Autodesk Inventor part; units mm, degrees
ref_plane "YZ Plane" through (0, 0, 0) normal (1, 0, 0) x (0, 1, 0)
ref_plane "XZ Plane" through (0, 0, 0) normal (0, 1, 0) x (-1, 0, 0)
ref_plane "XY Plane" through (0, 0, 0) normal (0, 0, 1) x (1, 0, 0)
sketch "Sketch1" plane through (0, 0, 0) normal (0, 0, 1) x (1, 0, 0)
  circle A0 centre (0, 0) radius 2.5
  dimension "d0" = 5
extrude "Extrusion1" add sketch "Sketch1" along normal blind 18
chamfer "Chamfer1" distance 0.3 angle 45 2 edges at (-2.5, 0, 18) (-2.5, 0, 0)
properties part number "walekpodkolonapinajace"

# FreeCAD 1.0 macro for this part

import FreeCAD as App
import Part
import Sketcher


def edges_at(feature, points):
    """Names of the edges that pass closest to the given points."""
    edges = feature.Shape.Edges
    near = lambda p: min(range(len(edges)), key=lambda i: edges[i].distToShape(Part.Vertex(*p))[0])
    return sorted({f"Edge{near(p) + 1}" for p in points})

doc = App.newDocument("Part")
body = doc.addObject("PartDesign::Body", "Body")

sketch1 = body.newObject("Sketcher::SketchObject", "Sketch")
sketch1.AttachmentSupport = (doc.getObject("XY_Plane"), [""])
sketch1.MapMode = "FlatFace"
sketch1.addGeometry(Part.Circle(App.Vector(0, 0, 0), App.Vector(0, 0, 1), 2.5), False)
sketch1.addConstraint([
    Sketcher.Constraint("Coincident", 0, 3, -1, 1),
    Sketcher.Constraint("Diameter", 0, 5.0),
])
pad1 = body.newObject("PartDesign::Pad", "Pad")
pad1.Profile = sketch1
pad1.Length = 18
doc.recompute()

chamfer = body.newObject("PartDesign::Chamfer", "Chamfer")
chamfer.Base = (pad1, edges_at(pad1, [(-2.5, 0, 18), (-2.5, 0, 0)]))
chamfer.Size = 0.3

doc.recompute()
